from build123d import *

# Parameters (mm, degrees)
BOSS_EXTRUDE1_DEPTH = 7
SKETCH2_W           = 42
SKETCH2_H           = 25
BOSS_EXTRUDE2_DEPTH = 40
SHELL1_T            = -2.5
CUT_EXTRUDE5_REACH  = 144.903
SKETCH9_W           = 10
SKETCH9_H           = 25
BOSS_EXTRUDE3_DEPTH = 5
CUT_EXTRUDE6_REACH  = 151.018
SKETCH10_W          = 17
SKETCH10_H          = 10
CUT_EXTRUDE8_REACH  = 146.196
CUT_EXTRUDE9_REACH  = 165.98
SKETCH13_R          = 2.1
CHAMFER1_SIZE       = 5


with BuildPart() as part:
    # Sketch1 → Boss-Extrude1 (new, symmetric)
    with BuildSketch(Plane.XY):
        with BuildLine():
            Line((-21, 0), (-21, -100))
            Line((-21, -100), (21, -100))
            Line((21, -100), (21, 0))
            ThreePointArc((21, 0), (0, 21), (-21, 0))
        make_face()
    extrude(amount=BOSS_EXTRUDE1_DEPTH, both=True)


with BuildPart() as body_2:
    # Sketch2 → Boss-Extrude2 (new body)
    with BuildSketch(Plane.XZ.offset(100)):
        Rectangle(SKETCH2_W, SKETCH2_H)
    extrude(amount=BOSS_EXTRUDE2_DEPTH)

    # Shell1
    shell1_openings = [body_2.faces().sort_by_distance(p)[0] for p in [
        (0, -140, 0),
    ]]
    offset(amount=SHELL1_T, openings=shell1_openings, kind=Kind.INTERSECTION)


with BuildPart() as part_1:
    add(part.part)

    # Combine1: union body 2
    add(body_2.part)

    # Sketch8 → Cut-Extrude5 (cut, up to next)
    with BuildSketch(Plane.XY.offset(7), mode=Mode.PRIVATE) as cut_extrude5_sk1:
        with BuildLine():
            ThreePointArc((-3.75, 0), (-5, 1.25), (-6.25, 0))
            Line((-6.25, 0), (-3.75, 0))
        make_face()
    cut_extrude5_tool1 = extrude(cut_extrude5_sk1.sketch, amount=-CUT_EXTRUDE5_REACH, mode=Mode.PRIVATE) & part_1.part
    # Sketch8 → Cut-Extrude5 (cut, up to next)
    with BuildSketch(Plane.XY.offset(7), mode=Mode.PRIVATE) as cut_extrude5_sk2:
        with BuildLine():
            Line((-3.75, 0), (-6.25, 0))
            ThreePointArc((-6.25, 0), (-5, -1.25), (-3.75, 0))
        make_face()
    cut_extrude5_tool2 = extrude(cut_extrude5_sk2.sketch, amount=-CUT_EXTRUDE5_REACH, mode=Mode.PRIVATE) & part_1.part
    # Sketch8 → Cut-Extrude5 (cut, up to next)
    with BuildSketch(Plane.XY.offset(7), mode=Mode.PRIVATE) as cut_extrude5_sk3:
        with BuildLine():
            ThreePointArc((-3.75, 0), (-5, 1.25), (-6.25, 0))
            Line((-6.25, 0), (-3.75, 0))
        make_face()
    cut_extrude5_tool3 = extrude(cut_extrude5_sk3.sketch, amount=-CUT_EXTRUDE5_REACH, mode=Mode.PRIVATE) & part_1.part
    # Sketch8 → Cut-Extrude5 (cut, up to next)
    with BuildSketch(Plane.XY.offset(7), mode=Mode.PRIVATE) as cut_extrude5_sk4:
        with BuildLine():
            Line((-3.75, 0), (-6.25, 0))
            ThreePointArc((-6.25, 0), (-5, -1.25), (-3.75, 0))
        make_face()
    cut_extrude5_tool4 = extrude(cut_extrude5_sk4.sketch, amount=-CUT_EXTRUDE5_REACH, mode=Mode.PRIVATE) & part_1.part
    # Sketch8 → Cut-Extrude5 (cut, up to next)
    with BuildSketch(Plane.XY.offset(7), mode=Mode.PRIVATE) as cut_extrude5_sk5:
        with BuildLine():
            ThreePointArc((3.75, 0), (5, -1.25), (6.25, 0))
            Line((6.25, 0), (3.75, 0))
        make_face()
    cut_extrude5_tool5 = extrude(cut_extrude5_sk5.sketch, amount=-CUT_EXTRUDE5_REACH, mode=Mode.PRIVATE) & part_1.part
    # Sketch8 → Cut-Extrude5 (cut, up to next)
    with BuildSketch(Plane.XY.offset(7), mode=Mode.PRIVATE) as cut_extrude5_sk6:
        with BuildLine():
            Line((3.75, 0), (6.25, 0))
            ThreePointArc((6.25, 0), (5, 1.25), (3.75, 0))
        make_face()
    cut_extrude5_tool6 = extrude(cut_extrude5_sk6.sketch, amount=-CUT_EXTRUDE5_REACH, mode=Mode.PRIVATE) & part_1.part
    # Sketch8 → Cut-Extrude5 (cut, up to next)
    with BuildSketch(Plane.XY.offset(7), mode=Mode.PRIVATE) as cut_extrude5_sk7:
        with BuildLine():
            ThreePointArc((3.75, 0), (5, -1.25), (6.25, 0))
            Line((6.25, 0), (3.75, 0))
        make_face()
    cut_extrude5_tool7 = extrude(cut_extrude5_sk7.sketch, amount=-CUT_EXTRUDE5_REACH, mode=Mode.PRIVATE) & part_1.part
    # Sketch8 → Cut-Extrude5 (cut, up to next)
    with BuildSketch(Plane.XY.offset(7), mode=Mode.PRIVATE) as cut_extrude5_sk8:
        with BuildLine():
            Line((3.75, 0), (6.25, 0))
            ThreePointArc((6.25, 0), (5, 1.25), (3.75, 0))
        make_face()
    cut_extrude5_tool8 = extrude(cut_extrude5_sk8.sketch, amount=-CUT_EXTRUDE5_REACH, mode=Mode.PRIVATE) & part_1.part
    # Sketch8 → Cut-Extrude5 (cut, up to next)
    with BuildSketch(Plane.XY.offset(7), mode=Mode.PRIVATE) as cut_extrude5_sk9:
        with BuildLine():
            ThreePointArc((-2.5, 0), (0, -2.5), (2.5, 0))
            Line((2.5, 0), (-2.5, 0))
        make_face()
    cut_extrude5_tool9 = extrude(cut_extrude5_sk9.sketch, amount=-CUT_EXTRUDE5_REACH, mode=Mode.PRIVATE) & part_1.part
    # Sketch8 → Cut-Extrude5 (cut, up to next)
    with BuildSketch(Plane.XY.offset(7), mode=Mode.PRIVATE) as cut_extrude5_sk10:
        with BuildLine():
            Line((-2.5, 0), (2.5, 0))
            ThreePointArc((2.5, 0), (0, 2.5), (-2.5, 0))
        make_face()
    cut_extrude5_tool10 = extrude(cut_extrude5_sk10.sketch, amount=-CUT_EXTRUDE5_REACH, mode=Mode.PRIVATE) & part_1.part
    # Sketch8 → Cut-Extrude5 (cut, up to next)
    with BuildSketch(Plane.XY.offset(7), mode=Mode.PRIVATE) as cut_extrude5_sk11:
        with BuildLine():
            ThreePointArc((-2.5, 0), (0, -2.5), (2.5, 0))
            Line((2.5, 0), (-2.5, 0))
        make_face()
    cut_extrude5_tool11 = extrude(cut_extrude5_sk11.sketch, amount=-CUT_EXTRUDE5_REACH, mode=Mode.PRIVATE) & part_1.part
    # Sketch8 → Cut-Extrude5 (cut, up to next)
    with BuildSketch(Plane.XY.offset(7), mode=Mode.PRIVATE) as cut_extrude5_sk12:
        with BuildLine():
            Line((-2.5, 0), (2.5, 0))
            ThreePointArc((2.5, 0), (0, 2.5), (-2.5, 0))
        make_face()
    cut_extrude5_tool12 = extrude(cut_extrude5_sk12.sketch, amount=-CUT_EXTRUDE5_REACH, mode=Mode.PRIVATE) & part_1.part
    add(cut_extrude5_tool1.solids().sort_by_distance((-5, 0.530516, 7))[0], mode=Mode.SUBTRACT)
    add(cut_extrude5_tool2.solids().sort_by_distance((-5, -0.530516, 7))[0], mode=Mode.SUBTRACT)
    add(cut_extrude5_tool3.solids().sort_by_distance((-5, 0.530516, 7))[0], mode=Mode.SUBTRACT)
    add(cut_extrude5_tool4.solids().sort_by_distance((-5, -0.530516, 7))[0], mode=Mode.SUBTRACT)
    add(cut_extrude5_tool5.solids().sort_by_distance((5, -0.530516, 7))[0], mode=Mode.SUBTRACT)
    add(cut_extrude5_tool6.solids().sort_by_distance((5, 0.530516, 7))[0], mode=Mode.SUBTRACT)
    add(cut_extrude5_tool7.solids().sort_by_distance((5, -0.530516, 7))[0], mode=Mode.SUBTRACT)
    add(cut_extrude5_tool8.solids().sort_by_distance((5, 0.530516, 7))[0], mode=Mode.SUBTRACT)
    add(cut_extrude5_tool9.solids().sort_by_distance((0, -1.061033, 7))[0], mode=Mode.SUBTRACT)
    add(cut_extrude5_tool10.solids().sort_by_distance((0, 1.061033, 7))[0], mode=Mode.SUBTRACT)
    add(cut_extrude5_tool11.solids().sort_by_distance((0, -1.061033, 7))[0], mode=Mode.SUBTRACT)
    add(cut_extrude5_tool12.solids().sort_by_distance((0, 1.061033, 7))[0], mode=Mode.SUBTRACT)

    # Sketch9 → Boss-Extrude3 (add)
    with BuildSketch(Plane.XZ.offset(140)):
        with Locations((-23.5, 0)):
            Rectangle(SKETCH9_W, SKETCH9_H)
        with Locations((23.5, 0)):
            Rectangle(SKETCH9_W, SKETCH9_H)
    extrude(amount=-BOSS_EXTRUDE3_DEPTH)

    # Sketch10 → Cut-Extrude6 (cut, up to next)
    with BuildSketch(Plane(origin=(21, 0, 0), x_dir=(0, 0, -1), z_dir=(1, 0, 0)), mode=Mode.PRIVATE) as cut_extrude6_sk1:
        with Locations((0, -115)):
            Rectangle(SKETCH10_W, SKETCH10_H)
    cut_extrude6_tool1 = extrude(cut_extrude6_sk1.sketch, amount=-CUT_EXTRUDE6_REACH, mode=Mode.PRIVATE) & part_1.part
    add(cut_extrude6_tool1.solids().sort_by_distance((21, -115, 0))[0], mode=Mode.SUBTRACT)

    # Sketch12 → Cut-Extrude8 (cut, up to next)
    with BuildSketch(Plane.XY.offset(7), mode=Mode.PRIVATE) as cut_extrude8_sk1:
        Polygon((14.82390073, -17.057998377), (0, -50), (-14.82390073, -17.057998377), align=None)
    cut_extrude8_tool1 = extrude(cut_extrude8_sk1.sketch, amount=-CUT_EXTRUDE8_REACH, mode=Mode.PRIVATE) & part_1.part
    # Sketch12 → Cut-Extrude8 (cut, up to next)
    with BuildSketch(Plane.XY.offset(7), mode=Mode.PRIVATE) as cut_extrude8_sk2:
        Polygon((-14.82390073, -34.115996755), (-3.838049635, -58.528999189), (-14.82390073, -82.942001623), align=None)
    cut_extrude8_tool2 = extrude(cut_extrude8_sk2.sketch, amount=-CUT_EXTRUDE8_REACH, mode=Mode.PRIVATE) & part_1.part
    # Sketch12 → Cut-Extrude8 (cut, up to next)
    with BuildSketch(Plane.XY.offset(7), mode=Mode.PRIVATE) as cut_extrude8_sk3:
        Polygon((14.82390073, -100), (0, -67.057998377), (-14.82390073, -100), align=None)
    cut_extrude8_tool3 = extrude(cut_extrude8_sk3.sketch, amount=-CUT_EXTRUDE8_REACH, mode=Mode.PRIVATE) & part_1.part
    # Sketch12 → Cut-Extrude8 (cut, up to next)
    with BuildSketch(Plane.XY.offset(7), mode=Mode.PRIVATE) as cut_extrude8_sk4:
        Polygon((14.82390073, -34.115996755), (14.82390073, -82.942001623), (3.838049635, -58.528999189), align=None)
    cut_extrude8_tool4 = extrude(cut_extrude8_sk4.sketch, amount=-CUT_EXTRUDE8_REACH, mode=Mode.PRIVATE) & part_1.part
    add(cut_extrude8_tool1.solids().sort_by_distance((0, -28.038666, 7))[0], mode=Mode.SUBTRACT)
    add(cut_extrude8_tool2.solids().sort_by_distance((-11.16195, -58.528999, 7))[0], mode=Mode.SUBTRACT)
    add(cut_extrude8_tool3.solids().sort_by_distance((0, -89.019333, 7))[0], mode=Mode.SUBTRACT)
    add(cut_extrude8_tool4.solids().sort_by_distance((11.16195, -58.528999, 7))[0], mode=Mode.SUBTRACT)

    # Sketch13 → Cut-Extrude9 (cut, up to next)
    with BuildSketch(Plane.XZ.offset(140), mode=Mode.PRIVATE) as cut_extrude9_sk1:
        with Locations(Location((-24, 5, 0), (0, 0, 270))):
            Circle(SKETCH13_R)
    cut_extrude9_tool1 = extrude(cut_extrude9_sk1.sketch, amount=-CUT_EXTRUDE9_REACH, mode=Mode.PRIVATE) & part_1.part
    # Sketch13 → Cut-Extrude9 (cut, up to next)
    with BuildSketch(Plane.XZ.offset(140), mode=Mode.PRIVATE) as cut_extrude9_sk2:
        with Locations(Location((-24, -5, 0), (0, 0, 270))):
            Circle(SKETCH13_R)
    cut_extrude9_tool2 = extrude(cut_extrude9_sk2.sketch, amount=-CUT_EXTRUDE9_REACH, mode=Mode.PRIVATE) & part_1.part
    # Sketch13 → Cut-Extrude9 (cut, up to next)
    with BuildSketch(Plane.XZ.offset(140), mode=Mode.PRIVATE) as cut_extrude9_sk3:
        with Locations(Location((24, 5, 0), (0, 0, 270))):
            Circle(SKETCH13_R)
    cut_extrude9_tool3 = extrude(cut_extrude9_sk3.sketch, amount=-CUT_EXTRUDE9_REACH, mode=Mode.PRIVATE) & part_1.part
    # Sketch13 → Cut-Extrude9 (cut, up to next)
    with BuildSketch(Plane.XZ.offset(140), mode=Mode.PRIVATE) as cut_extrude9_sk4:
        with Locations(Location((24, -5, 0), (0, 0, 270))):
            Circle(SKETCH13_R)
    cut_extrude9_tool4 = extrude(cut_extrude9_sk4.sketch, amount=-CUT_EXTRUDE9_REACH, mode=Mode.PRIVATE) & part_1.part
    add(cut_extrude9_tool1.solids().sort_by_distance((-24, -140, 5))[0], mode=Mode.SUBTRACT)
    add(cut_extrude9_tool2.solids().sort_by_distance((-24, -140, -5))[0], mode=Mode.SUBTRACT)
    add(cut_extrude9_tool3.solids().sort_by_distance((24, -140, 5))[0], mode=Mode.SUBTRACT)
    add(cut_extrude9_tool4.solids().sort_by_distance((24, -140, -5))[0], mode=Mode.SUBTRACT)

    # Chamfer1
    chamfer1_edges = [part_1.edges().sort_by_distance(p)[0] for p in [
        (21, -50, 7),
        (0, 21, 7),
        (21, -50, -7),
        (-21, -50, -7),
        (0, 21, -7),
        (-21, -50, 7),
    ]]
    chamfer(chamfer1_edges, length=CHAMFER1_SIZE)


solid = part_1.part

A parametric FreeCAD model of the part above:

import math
import FreeCAD as App
import Part
import Sketcher
Q = App.Units.Quantity


def edges_at(feature, points):
    """Names of the edges that pass closest to the given points."""
    edges = feature.Shape.Edges
    near = lambda p: min(range(len(edges)), key=lambda i: edges[i].distToShape(Part.Vertex(*p))[0])
    return sorted({f"Edge{near(p) + 1}" for p in points})


def faces_at(feature, points):
    """Names of the faces that lie closest to the given points."""
    faces = feature.Shape.Faces
    near = lambda p: min(range(len(faces)), key=lambda i: faces[i].distToShape(Part.Vertex(*p))[0])
    return sorted({f"Face{near(p) + 1}" for p in points})


def add_polygon(sketch, points):
    """Adds a closed chain of lines whose ends are joined by coincident constraints."""
    first, n = sketch.GeometryCount, len(points)
    for a, b in zip(points, points[1:] + points[:1]):
        sketch.addGeometry(Part.LineSegment(App.Vector(*a, 0), App.Vector(*b, 0)), False)
    for i in range(n):
        sketch.addConstraint(Sketcher.Constraint("Coincident", first + i, 2, first + (i + 1) % n, 1))

doc = App.newDocument("Part")
body = doc.addObject("PartDesign::Body", "Body")

# Sketch on XY plane
sketch1 = doc.addObject("Sketcher::SketchObject", "Sketch")
body.addObject(sketch1)
sketch1.AttachmentSupport = (doc.XY_Plane, [""])
sketch1.MapMode = "FlatFace"
sketch1.addGeometry(Part.LineSegment(App.Vector(-21, 0, 0), App.Vector(-21, -100, 0)), False)
sketch1.addGeometry(Part.LineSegment(App.Vector(-21, -100, 0), App.Vector(21, -100, 0)), False)
sketch1.addGeometry(Part.LineSegment(App.Vector(21, -100, 0), App.Vector(21, 0, 0)), False)
sketch1.addGeometry(Part.ArcOfCircle(Part.Circle(App.Vector(0, 0, 0), App.Vector(0, 0, 1), 21), math.radians(0), math.radians(180)), False)
sketch1.addConstraint(Sketcher.Constraint("Coincident", 0, 2, 1, 1))
sketch1.addConstraint(Sketcher.Constraint("Coincident", 1, 2, 2, 1))
sketch1.addConstraint(Sketcher.Constraint("Tangent", 2, 2, 3, 1))
sketch1.addConstraint(Sketcher.Constraint("Tangent", 3, 2, 0, 1))
sketch1.addConstraint(Sketcher.Constraint("Vertical", 0))
sketch1.addConstraint(Sketcher.Constraint("Horizontal", 1))
sketch1.addConstraint(Sketcher.Constraint("Vertical", 2))
sketch1.addConstraint(Sketcher.Constraint("Coincident", 3, 3, -1, 1))
sketch1.addConstraint(Sketcher.Constraint("Radius", 3, Q("21 mm")))
sketch1.addConstraint(Sketcher.Constraint("DistanceY", 0, 2, 0, 1, Q("100 mm")))
pad1 = doc.addObject("PartDesign::Pad", "Pad")
body.addObject(pad1)
pad1.Profile = sketch1
pad1.Length = 14
pad1.Midplane = True
body2 = doc.addObject("PartDesign::Body", "Body001")

# Sketch on XZ plane
sketch2 = doc.addObject("Sketcher::SketchObject", "Sketch001")
body2.addObject(sketch2)
sketch2.AttachmentSupport = (doc.getObject("XZ_Plane001"), [""])
sketch2.MapMode = "FlatFace"
sketch2.AttachmentOffset = App.Placement(App.Vector(0, 0, 100), App.Rotation())
add_polygon(sketch2, [(-21, 12), (-21, -12), (21, -12), (21, 12)])  # lines 0-3
sketch2.addConstraint(Sketcher.Constraint("Vertical", 0))
sketch2.addConstraint(Sketcher.Constraint("Horizontal", 1))
sketch2.addConstraint(Sketcher.Constraint("Vertical", 2))
sketch2.addConstraint(Sketcher.Constraint("Horizontal", 3))
sketch2.addConstraint(Sketcher.Constraint("Symmetric", 0, 2, 2, 2, -1, 1))
sketch2.addConstraint(Sketcher.Constraint("DistanceX", 1, 1, 1, 2, Q("42 mm")))
sketch2.addConstraint(Sketcher.Constraint("DistanceY", 0, 2, 0, 1, Q("25 mm")))
pad2 = doc.addObject("PartDesign::Pad", "Pad001")
body2.addObject(pad2)
pad2.Profile = sketch2
pad2.Length = 40
doc.recompute()

thickness = doc.addObject("PartDesign::Thickness", "Thickness")
body2.addObject(thickness)
thickness.Base = (pad2, faces_at(pad2, [(0, -140, 0)]))
thickness.Value = 2.5
thickness.Reversed = True
thickness.Join = "Intersection"
doc.recompute()

boolean = doc.addObject("PartDesign::Boolean", "Boolean")
body.addObject(boolean)
boolean.Type = "Fuse"
boolean.addObjects([body2])

# Sketch on XY plane
sketch3 = doc.addObject("Sketcher::SketchObject", "Sketch002")
body.addObject(sketch3)
sketch3.AttachmentSupport = (doc.XY_Plane, [""])
sketch3.MapMode = "FlatFace"
sketch3.AttachmentOffset = App.Placement(App.Vector(0, 0, 7), App.Rotation())
sketch3.addGeometry(Part.ArcOfCircle(Part.Circle(App.Vector(-5, 0, 0), App.Vector(0, 0, 1), 1.2), math.radians(0), math.radians(180)), False)
sketch3.addGeometry(Part.LineSegment(App.Vector(-6.2, 0, 0), App.Vector(-3.8, 0, 0)), False)
sketch3.addConstraint(Sketcher.Constraint("Coincident", 0, 1, 1, 2))
sketch3.addConstraint(Sketcher.Constraint("Coincident", 1, 1, 0, 2))
sketch3.addConstraint(Sketcher.Constraint("Horizontal", 1))
sketch3.addConstraint(Sketcher.Constraint("PointOnObject", 0, 3, -1))
sketch3.addConstraint(Sketcher.Constraint("PointOnObject", 0, 1, -1))
sketch3.addConstraint(Sketcher.Constraint("Radius", 0, Q("1.25 mm")))
sketch3.addConstraint(Sketcher.Constraint("DistanceX", 0, 3, -1, 1, Q("5 mm")))
pocket1 = doc.addObject("PartDesign::Pocket", "Pocket")
body.addObject(pocket1)
pocket1.Profile = sketch3
pocket1.Type = "UpToFirst"

# Sketch on XY plane
sketch4 = doc.addObject("Sketcher::SketchObject", "Sketch003")
body.addObject(sketch4)
sketch4.AttachmentSupport = (doc.XY_Plane, [""])
sketch4.MapMode = "FlatFace"
sketch4.AttachmentOffset = App.Placement(App.Vector(0, 0, 7), App.Rotation())
sketch4.addGeometry(Part.LineSegment(App.Vector(-3.8, 0, 0), App.Vector(-6.2, 0, 0)), False)
sketch4.addGeometry(Part.ArcOfCircle(Part.Circle(App.Vector(-5, 0, 0), App.Vector(0, 0, 1), 1.2), math.radians(180), math.radians(360)), False)
sketch4.addConstraint(Sketcher.Constraint("Coincident", 0, 1, 1, 2))
sketch4.addConstraint(Sketcher.Constraint("Coincident", 1, 1, 0, 2))
sketch4.addConstraint(Sketcher.Constraint("Horizontal", 0))
sketch4.addConstraint(Sketcher.Constraint("PointOnObject", 1, 3, -1))
sketch4.addConstraint(Sketcher.Constraint("PointOnObject", 0, 1, -1))
sketch4.addConstraint(Sketcher.Constraint("Radius", 1, Q("1.25 mm")))
sketch4.addConstraint(Sketcher.Constraint("DistanceX", 1, 3, -1, 1, Q("5 mm")))
pocket2 = doc.addObject("PartDesign::Pocket", "Pocket001")
body.addObject(pocket2)
pocket2.Profile = sketch4
pocket2.Type = "UpToFirst"

# Sketch on XY plane
sketch5 = doc.addObject("Sketcher::SketchObject", "Sketch004")
body.addObject(sketch5)
sketch5.AttachmentSupport = (doc.XY_Plane, [""])
sketch5.MapMode = "FlatFace"
sketch5.AttachmentOffset = App.Placement(App.Vector(0, 0, 7), App.Rotation())
sketch5.addGeometry(Part.ArcOfCircle(Part.Circle(App.Vector(-5, 0, 0), App.Vector(0, 0, 1), 1.2), math.radians(0), math.radians(180)), False)
sketch5.addGeometry(Part.LineSegment(App.Vector(-6.2, 0, 0), App.Vector(-3.8, 0, 0)), False)
sketch5.addConstraint(Sketcher.Constraint("Coincident", 0, 1, 1, 2))
sketch5.addConstraint(Sketcher.Constraint("Coincident", 1, 1, 0, 2))
sketch5.addConstraint(Sketcher.Constraint("Horizontal", 1))
sketch5.addConstraint(Sketcher.Constraint("PointOnObject", 0, 3, -1))
sketch5.addConstraint(Sketcher.Constraint("PointOnObject", 0, 1, -1))
sketch5.addConstraint(Sketcher.Constraint("Radius", 0, Q("1.25 mm")))
sketch5.addConstraint(Sketcher.Constraint("DistanceX", 0, 3, -1, 1, Q("5 mm")))
pocket3 = doc.addObject("PartDesign::Pocket", "Pocket002")
body.addObject(pocket3)
pocket3.Profile = sketch5
pocket3.Length = 14

# Sketch on XY plane
sketch6 = doc.addObject("Sketcher::SketchObject", "Sketch005")
body.addObject(sketch6)
sketch6.AttachmentSupport = (doc.XY_Plane, [""])
sketch6.MapMode = "FlatFace"
sketch6.AttachmentOffset = App.Placement(App.Vector(0, 0, 7), App.Rotation())
sketch6.addGeometry(Part.LineSegment(App.Vector(-3.8, 0, 0), App.Vector(-6.2, 0, 0)), False)
sketch6.addGeometry(Part.ArcOfCircle(Part.Circle(App.Vector(-5, 0, 0), App.Vector(0, 0, 1), 1.2), math.radians(180), math.radians(360)), False)
sketch6.addConstraint(Sketcher.Constraint("Coincident", 0, 1, 1, 2))
sketch6.addConstraint(Sketcher.Constraint("Coincident", 1, 1, 0, 2))
sketch6.addConstraint(Sketcher.Constraint("Horizontal", 0))
sketch6.addConstraint(Sketcher.Constraint("PointOnObject", 1, 3, -1))
sketch6.addConstraint(Sketcher.Constraint("PointOnObject", 0, 1, -1))
sketch6.addConstraint(Sketcher.Constraint("Radius", 1, Q("1.25 mm")))
sketch6.addConstraint(Sketcher.Constraint("DistanceX", 1, 3, -1, 1, Q("5 mm")))
pocket4 = doc.addObject("PartDesign::Pocket", "Pocket003")
body.addObject(pocket4)
pocket4.Profile = sketch6
pocket4.Length = 14

# Sketch on XY plane
sketch7 = doc.addObject("Sketcher::SketchObject", "Sketch006")
body.addObject(sketch7)
sketch7.AttachmentSupport = (doc.XY_Plane, [""])
sketch7.MapMode = "FlatFace"
sketch7.AttachmentOffset = App.Placement(App.Vector(0, 0, 7), App.Rotation())
sketch7.addGeometry(Part.ArcOfCircle(Part.Circle(App.Vector(5, 0, 0), App.Vector(0, 0, 1), 1.2), math.radians(180), math.radians(360)), False)
sketch7.addGeometry(Part.LineSegment(App.Vector(6.2, 0, 0), App.Vector(3.8, 0, 0)), False)
sketch7.addConstraint(Sketcher.Constraint("Coincident", 0, 1, 1, 2))
sketch7.addConstraint(Sketcher.Constraint("Coincident", 1, 1, 0, 2))
sketch7.addConstraint(Sketcher.Constraint("Horizontal", 1))
sketch7.addConstraint(Sketcher.Constraint("PointOnObject", 0, 3, -1))
sketch7.addConstraint(Sketcher.Constraint("PointOnObject", 0, 1, -1))
sketch7.addConstraint(Sketcher.Constraint("Radius", 0, Q("1.25 mm")))
sketch7.addConstraint(Sketcher.Constraint("DistanceX", -1, 1, 0, 3, Q("5 mm")))
pocket5 = doc.addObject("PartDesign::Pocket", "Pocket004")
body.addObject(pocket5)
pocket5.Profile = sketch7
pocket5.Type = "UpToFirst"

# Sketch on XY plane
sketch8 = doc.addObject("Sketcher::SketchObject", "Sketch007")
body.addObject(sketch8)
sketch8.AttachmentSupport = (doc.XY_Plane, [""])
sketch8.MapMode = "FlatFace"
sketch8.AttachmentOffset = App.Placement(App.Vector(0, 0, 7), App.Rotation())
sketch8.addGeometry(Part.LineSegment(App.Vector(3.8, 0, 0), App.Vector(6.2, 0, 0)), False)
sketch8.addGeometry(Part.ArcOfCircle(Part.Circle(App.Vector(5, 0, 0), App.Vector(0, 0, 1), 1.2), math.radians(0), math.radians(180)), False)
sketch8.addConstraint(Sketcher.Constraint("Coincident", 0, 1, 1, 2))
sketch8.addConstraint(Sketcher.Constraint("Coincident", 1, 1, 0, 2))
sketch8.addConstraint(Sketcher.Constraint("Horizontal", 0))
sketch8.addConstraint(Sketcher.Constraint("PointOnObject", 1, 3, -1))
sketch8.addConstraint(Sketcher.Constraint("PointOnObject", 0, 1, -1))
sketch8.addConstraint(Sketcher.Constraint("Radius", 1, Q("1.25 mm")))
sketch8.addConstraint(Sketcher.Constraint("DistanceX", -1, 1, 1, 3, Q("5 mm")))
pocket6 = doc.addObject("PartDesign::Pocket", "Pocket005")
body.addObject(pocket6)
pocket6.Profile = sketch8
pocket6.Type = "UpToFirst"

# Sketch on XY plane
sketch9 = doc.addObject("Sketcher::SketchObject", "Sketch008")
body.addObject(sketch9)
sketch9.AttachmentSupport = (doc.XY_Plane, [""])
sketch9.MapMode = "FlatFace"
sketch9.AttachmentOffset = App.Placement(App.Vector(0, 0, 7), App.Rotation())
sketch9.addGeometry(Part.ArcOfCircle(Part.Circle(App.Vector(5, 0, 0), App.Vector(0, 0, 1), 1.2), math.radians(180), math.radians(360)), False)
sketch9.addGeometry(Part.LineSegment(App.Vector(6.2, 0, 0), App.Vector(3.8, 0, 0)), False)
sketch9.addConstraint(Sketcher.Constraint("Coincident", 0, 1, 1, 2))
sketch9.addConstraint(Sketcher.Constraint("Coincident", 1, 1, 0, 2))
sketch9.addConstraint(Sketcher.Constraint("Horizontal", 1))
sketch9.addConstraint(Sketcher.Constraint("PointOnObject", 0, 3, -1))
sketch9.addConstraint(Sketcher.Constraint("PointOnObject", 0, 1, -1))
sketch9.addConstraint(Sketcher.Constraint("Radius", 0, Q("1.25 mm")))
sketch9.addConstraint(Sketcher.Constraint("DistanceX", -1, 1, 0, 3, Q("5 mm")))
pocket7 = doc.addObject("PartDesign::Pocket", "Pocket006")
body.addObject(pocket7)
pocket7.Profile = sketch9
pocket7.Length = 14

# Sketch on XY plane
sketch10 = doc.addObject("Sketcher::SketchObject", "Sketch009")
body.addObject(sketch10)
sketch10.AttachmentSupport = (doc.XY_Plane, [""])
sketch10.MapMode = "FlatFace"
sketch10.AttachmentOffset = App.Placement(App.Vector(0, 0, 7), App.Rotation())
sketch10.addGeometry(Part.LineSegment(App.Vector(3.8, 0, 0), App.Vector(6.2, 0, 0)), False)
sketch10.addGeometry(Part.ArcOfCircle(Part.Circle(App.Vector(5, 0, 0), App.Vector(0, 0, 1), 1.2), math.radians(0), math.radians(180)), False)
sketch10.addConstraint(Sketcher.Constraint("Coincident", 0, 1, 1, 2))
sketch10.addConstraint(Sketcher.Constraint("Coincident", 1, 1, 0, 2))
sketch10.addConstraint(Sketcher.Constraint("Horizontal", 0))
sketch10.addConstraint(Sketcher.Constraint("PointOnObject", 1, 3, -1))
sketch10.addConstraint(Sketcher.Constraint("PointOnObject", 0, 1, -1))
sketch10.addConstraint(Sketcher.Constraint("Radius", 1, Q("1.25 mm")))
sketch10.addConstraint(Sketcher.Constraint("DistanceX", -1, 1, 1, 3, Q("5 mm")))
pocket8 = doc.addObject("PartDesign::Pocket", "Pocket007")
body.addObject(pocket8)
pocket8.Profile = sketch10
pocket8.Length = 14

# Sketch on XY plane
sketch11 = doc.addObject("Sketcher::SketchObject", "Sketch010")
body.addObject(sketch11)
sketch11.AttachmentSupport = (doc.XY_Plane, [""])
sketch11.MapMode = "FlatFace"
sketch11.AttachmentOffset = App.Placement(App.Vector(0, 0, 7), App.Rotation())
sketch11.addGeometry(Part.ArcOfCircle(Part.Circle(App.Vector(0, 0, 0), App.Vector(0, 0, 1), 2.5), math.radians(180), math.radians(360)), False)
sketch11.addGeometry(Part.LineSegment(App.Vector(2.5, 0, 0), App.Vector(-2.5, 0, 0)), False)
sketch11.addConstraint(Sketcher.Constraint("Coincident", 0, 1, 1, 2))
sketch11.addConstraint(Sketcher.Constraint("Coincident", 1, 1, 0, 2))
sketch11.addConstraint(Sketcher.Constraint("Horizontal", 1))
sketch11.addConstraint(Sketcher.Constraint("Coincident", 0, 3, -1, 1))
sketch11.addConstraint(Sketcher.Constraint("PointOnObject", 0, 1, -1))
sketch11.addConstraint(Sketcher.Constraint("Radius", 0, Q("2.5 mm")))
pocket9 = doc.addObject("PartDesign::Pocket", "Pocket008")
body.addObject(pocket9)
pocket9.Profile = sketch11
pocket9.Type = "UpToFirst"

# Sketch on XY plane
sketch12 = doc.addObject("Sketcher::SketchObject", "Sketch011")
body.addObject(sketch12)
sketch12.AttachmentSupport = (doc.XY_Plane, [""])
sketch12.MapMode = "FlatFace"
sketch12.AttachmentOffset = App.Placement(App.Vector(0, 0, 7), App.Rotation())
sketch12.addGeometry(Part.LineSegment(App.Vector(-2.5, 0, 0), App.Vector(2.5, 0, 0)), False)
sketch12.addGeometry(Part.ArcOfCircle(Part.Circle(App.Vector(0, 0, 0), App.Vector(0, 0, 1), 2.5), math.radians(0), math.radians(180)), False)
sketch12.addConstraint(Sketcher.Constraint("Coincident", 0, 1, 1, 2))
sketch12.addConstraint(Sketcher.Constraint("Coincident", 1, 1, 0, 2))
sketch12.addConstraint(Sketcher.Constraint("Horizontal", 0))
sketch12.addConstraint(Sketcher.Constraint("Coincident", 1, 3, -1, 1))
sketch12.addConstraint(Sketcher.Constraint("PointOnObject", 0, 1, -1))
sketch12.addConstraint(Sketcher.Constraint("Radius", 1, Q("2.5 mm")))
pocket10 = doc.addObject("PartDesign::Pocket", "Pocket009")
body.addObject(pocket10)
pocket10.Profile = sketch12
pocket10.Type = "UpToFirst"

# Sketch on XY plane
sketch13 = doc.addObject("Sketcher::SketchObject", "Sketch012")
body.addObject(sketch13)
sketch13.AttachmentSupport = (doc.XY_Plane, [""])
sketch13.MapMode = "FlatFace"
sketch13.AttachmentOffset = App.Placement(App.Vector(0, 0, 7), App.Rotation())
sketch13.addGeometry(Part.ArcOfCircle(Part.Circle(App.Vector(0, 0, 0), App.Vector(0, 0, 1), 2.5), math.radians(180), math.radians(360)), False)
sketch13.addGeometry(Part.LineSegment(App.Vector(2.5, 0, 0), App.Vector(-2.5, 0, 0)), False)
sketch13.addConstraint(Sketcher.Constraint("Coincident", 0, 1, 1, 2))
sketch13.addConstraint(Sketcher.Constraint("Coincident", 1, 1, 0, 2))
sketch13.addConstraint(Sketcher.Constraint("Horizontal", 1))
sketch13.addConstraint(Sketcher.Constraint("Coincident", 0, 3, -1, 1))
sketch13.addConstraint(Sketcher.Constraint("PointOnObject", 0, 1, -1))
sketch13.addConstraint(Sketcher.Constraint("Radius", 0, Q("2.5 mm")))
pocket11 = doc.addObject("PartDesign::Pocket", "Pocket010")
body.addObject(pocket11)
pocket11.Profile = sketch13
pocket11.Length = 14

# Sketch on XY plane
sketch14 = doc.addObject("Sketcher::SketchObject", "Sketch013")
body.addObject(sketch14)
sketch14.AttachmentSupport = (doc.XY_Plane, [""])
sketch14.MapMode = "FlatFace"
sketch14.AttachmentOffset = App.Placement(App.Vector(0, 0, 7), App.Rotation())
sketch14.addGeometry(Part.LineSegment(App.Vector(-2.5, 0, 0), App.Vector(2.5, 0, 0)), False)
sketch14.addGeometry(Part.ArcOfCircle(Part.Circle(App.Vector(0, 0, 0), App.Vector(0, 0, 1), 2.5), math.radians(0), math.radians(180)), False)
sketch14.addConstraint(Sketcher.Constraint("Coincident", 0, 1, 1, 2))
sketch14.addConstraint(Sketcher.Constraint("Coincident", 1, 1, 0, 2))
sketch14.addConstraint(Sketcher.Constraint("Horizontal", 0))
sketch14.addConstraint(Sketcher.Constraint("Coincident", 1, 3, -1, 1))
sketch14.addConstraint(Sketcher.Constraint("PointOnObject", 0, 1, -1))
sketch14.addConstraint(Sketcher.Constraint("Radius", 1, Q("2.5 mm")))
pocket12 = doc.addObject("PartDesign::Pocket", "Pocket011")
body.addObject(pocket12)
pocket12.Profile = sketch14
pocket12.Length = 14

# Sketch on XZ plane
sketch15 = doc.addObject("Sketcher::SketchObject", "Sketch014")
body.addObject(sketch15)
sketch15.AttachmentSupport = (doc.XZ_Plane, [""])
sketch15.MapMode = "FlatFace"
sketch15.AttachmentOffset = App.Placement(App.Vector(0, 0, 140), App.Rotation())
add_polygon(sketch15, [(-28, 12), (-28, -12), (-18, -12), (-18, 12)])  # lines 0-3
add_polygon(sketch15, [(18, 12), (18, -12), (28, -12), (28, 12)])  # lines 4-7
sketch15.addConstraint(Sketcher.Constraint("Vertical", 0))
sketch15.addConstraint(Sketcher.Constraint("Horizontal", 1))
sketch15.addConstraint(Sketcher.Constraint("Vertical", 2))
sketch15.addConstraint(Sketcher.Constraint("Horizontal", 3))
sketch15.addConstraint(Sketcher.Constraint("Vertical", 4))
sketch15.addConstraint(Sketcher.Constraint("Horizontal", 5))
sketch15.addConstraint(Sketcher.Constraint("Vertical", 6))
sketch15.addConstraint(Sketcher.Constraint("Horizontal", 7))
sketch15.addConstraint(Sketcher.Constraint("Symmetric", 2, 2, 4, 2, -1, 1))
sketch15.addConstraint(Sketcher.Constraint("Symmetric", 0, 2, 6, 2, -1, 1))
sketch15.addConstraint(Sketcher.Constraint("Horizontal", 1, 2, 4, 2))
sketch15.addConstraint(Sketcher.Constraint("DistanceX", 1, 1, 1, 2, Q("10 mm")))
sketch15.addConstraint(Sketcher.Constraint("DistanceY", 0, 2, 0, 1, Q("25 mm")))
sketch15.addConstraint(Sketcher.Constraint("DistanceX", 1, 2, 4, 2, Q("37 mm")))
pad3 = doc.addObject("PartDesign::Pad", "Pad002")
body.addObject(pad3)
pad3.Profile = sketch15
pad3.Length = 5
pad3.Reversed = True

# Sketch on YZ plane
sketch16 = doc.addObject("Sketcher::SketchObject", "Sketch015")
body.addObject(sketch16)
sketch16.AttachmentSupport = (doc.YZ_Plane, [""])
sketch16.MapMode = "FlatFace"
sketch16.AttachmentOffset = App.Placement(App.Vector(0, 0, 21), App.Rotation())
add_polygon(sketch16, [(-110, 8), (-120, 8), (-120, -8), (-110, -8)])  # lines 0-3
sketch16.addConstraint(Sketcher.Constraint("Horizontal", 0))
sketch16.addConstraint(Sketcher.Constraint("Vertical", 1))
sketch16.addConstraint(Sketcher.Constraint("Horizontal", 2))
sketch16.addConstraint(Sketcher.Constraint("Vertical", 3))
sketch16.addConstraint(Sketcher.Constraint("DistanceX", 0, 2, 0, 1, Q("10 mm")))
sketch16.addConstraint(Sketcher.Constraint("DistanceY", 1, 2, 1, 1, Q("17 mm")))
sketch16.addConstraint(Sketcher.Constraint("DistanceX", 0, 2, -1, 1, Q("120 mm")))
sketch16.addConstraint(Sketcher.Constraint("DistanceY", -1, 1, 0, 2, Q("8.5 mm")))
pocket13 = doc.addObject("PartDesign::Pocket", "Pocket012")
body.addObject(pocket13)
pocket13.Profile = sketch16
pocket13.Type = "UpToFirst"

# Sketch on XY plane
sketch17 = doc.addObject("Sketcher::SketchObject", "Sketch016")
body.addObject(sketch17)
sketch17.AttachmentSupport = (doc.XY_Plane, [""])
sketch17.MapMode = "FlatFace"
sketch17.AttachmentOffset = App.Placement(App.Vector(0, 0, 7), App.Rotation())
add_polygon(sketch17, [(0, -50), (15, -17), (-15, -17)])  # lines 0-2
sketch17.addConstraint(Sketcher.Constraint("Horizontal", 1))
sketch17.addConstraint(Sketcher.Constraint("PointOnObject", 2, 2, -2))
sketch17.addConstraint(Sketcher.Constraint("Equal", 0, 2))
sketch17.addConstraint(Sketcher.Constraint("DistanceY", 2, 2, -1, 1, Q("50 mm")))
sketch17.addConstraint(Sketcher.Constraint("DistanceX", 1, 2, 1, 1, Q("29.647801 mm")))
sketch17.addConstraint(Sketcher.Constraint("DistanceY", 0, 2, -1, 1, Q("17.057998 mm")))
pocket14 = doc.addObject("PartDesign::Pocket", "Pocket013")
body.addObject(pocket14)
pocket14.Profile = sketch17
pocket14.Type = "UpToFirst"

# Sketch on XY plane
sketch18 = doc.addObject("Sketcher::SketchObject", "Sketch017")
body.addObject(sketch18)
sketch18.AttachmentSupport = (doc.XY_Plane, [""])
sketch18.MapMode = "FlatFace"
sketch18.AttachmentOffset = App.Placement(App.Vector(0, 0, 7), App.Rotation())
add_polygon(sketch18, [(-4, -59), (-15, -34), (-15, -83)])  # lines 0-2
sketch18.addConstraint(Sketcher.Constraint("Vertical", 1))
sketch18.addConstraint(Sketcher.Constraint("Equal", 0, 2))
sketch18.addConstraint(Sketcher.Constraint("DistanceY", 1, 2, -1, 1, Q("82.942002 mm")))
sketch18.addConstraint(Sketcher.Constraint("DistanceY", 2, 2, -1, 1, Q("58.528999 mm")))
sketch18.addConstraint(Sketcher.Constraint("DistanceX", 0, 2, -1, 1, Q("14.823901 mm")))
sketch18.addConstraint(Sketcher.Constraint("DistanceX", 2, 2, -1, 1, Q("3.83805 mm")))
pocket15 = doc.addObject("PartDesign::Pocket", "Pocket014")
body.addObject(pocket15)
pocket15.Profile = sketch18
pocket15.Type = "UpToFirst"

# Sketch on XY plane
sketch19 = doc.addObject("Sketcher::SketchObject", "Sketch018")
body.addObject(sketch19)
sketch19.AttachmentSupport = (doc.XY_Plane, [""])
sketch19.MapMode = "FlatFace"
sketch19.AttachmentOffset = App.Placement(App.Vector(0, 0, 7), App.Rotation())
add_polygon(sketch19, [(15, -100), (0, -67), (-15, -100)])  # lines 0-2
sketch19.addConstraint(Sketcher.Constraint("Horizontal", 2))
sketch19.addConstraint(Sketcher.Constraint("PointOnObject", 0, 2, -2))
sketch19.addConstraint(Sketcher.Constraint("Equal", 0, 1))
sketch19.addConstraint(Sketcher.Constraint("DistanceY", 1, 2, -1, 1, Q("100 mm")))
sketch19.addConstraint(Sketcher.Constraint("DistanceX", 2, 1, 2, 2, Q("29.647801 mm")))
sketch19.addConstraint(Sketcher.Constraint("DistanceY", 0, 2, -1, 1, Q("67.057998 mm")))
pocket16 = doc.addObject("PartDesign::Pocket", "Pocket015")
body.addObject(pocket16)
pocket16.Profile = sketch19
pocket16.Type = "UpToFirst"

# Sketch on XY plane
sketch20 = doc.addObject("Sketcher::SketchObject", "Sketch019")
body.addObject(sketch20)
sketch20.AttachmentSupport = (doc.XY_Plane, [""])
sketch20.MapMode = "FlatFace"
sketch20.AttachmentOffset = App.Placement(App.Vector(0, 0, 7), App.Rotation())
add_polygon(sketch20, [(15, -83), (15, -34), (4, -59)])  # lines 0-2
sketch20.addConstraint(Sketcher.Constraint("Vertical", 0))
sketch20.addConstraint(Sketcher.Constraint("Equal", 1, 2))
sketch20.addConstraint(Sketcher.Constraint("DistanceY", 1, 2, -1, 1, Q("58.528999 mm")))
sketch20.addConstraint(Sketcher.Constraint("DistanceY", 2, 2, -1, 1, Q("82.942002 mm")))
sketch20.addConstraint(Sketcher.Constraint("DistanceX", -1, 1, 0, 2, Q("14.823901 mm")))
sketch20.addConstraint(Sketcher.Constraint("DistanceX", -1, 1, 1, 2, Q("3.83805 mm")))
pocket17 = doc.addObject("PartDesign::Pocket", "Pocket016")
body.addObject(pocket17)
pocket17.Profile = sketch20
pocket17.Type = "UpToFirst"

# Sketch on XZ plane
sketch21 = doc.addObject("Sketcher::SketchObject", "Sketch020")
body.addObject(sketch21)
sketch21.AttachmentSupport = (doc.XZ_Plane, [""])
sketch21.MapMode = "FlatFace"
sketch21.AttachmentOffset = App.Placement(App.Vector(0, 0, 140), App.Rotation())
sketch21.addGeometry(Part.Circle(App.Vector(-24, 5, 0), App.Vector(0, 0, 1), 2.1), False)
sketch21.addConstraint(Sketcher.Constraint("Diameter", 0, Q("4.2 mm")))
sketch21.addConstraint(Sketcher.Constraint("DistanceX", 0, 3, -1, 1, Q("24 mm")))
sketch21.addConstraint(Sketcher.Constraint("DistanceY", -1, 1, 0, 3, Q("5 mm")))
pocket18 = doc.addObject("PartDesign::Pocket", "Pocket017")
body.addObject(pocket18)
pocket18.Profile = sketch21
pocket18.Type = "UpToFirst"

# Sketch on XZ plane
sketch22 = doc.addObject("Sketcher::SketchObject", "Sketch021")
body.addObject(sketch22)
sketch22.AttachmentSupport = (doc.XZ_Plane, [""])
sketch22.MapMode = "FlatFace"
sketch22.AttachmentOffset = App.Placement(App.Vector(0, 0, 140), App.Rotation())
sketch22.addGeometry(Part.Circle(App.Vector(-24, -5, 0), App.Vector(0, 0, 1), 2.1), False)
sketch22.addConstraint(Sketcher.Constraint("Diameter", 0, Q("4.2 mm")))
sketch22.addConstraint(Sketcher.Constraint("DistanceX", 0, 3, -1, 1, Q("24 mm")))
sketch22.addConstraint(Sketcher.Constraint("DistanceY", 0, 3, -1, 1, Q("5 mm")))
pocket19 = doc.addObject("PartDesign::Pocket", "Pocket018")
body.addObject(pocket19)
pocket19.Profile = sketch22
pocket19.Type = "UpToFirst"

# Sketch on XZ plane
sketch23 = doc.addObject("Sketcher::SketchObject", "Sketch022")
body.addObject(sketch23)
sketch23.AttachmentSupport = (doc.XZ_Plane, [""])
sketch23.MapMode = "FlatFace"
sketch23.AttachmentOffset = App.Placement(App.Vector(0, 0, 140), App.Rotation())
sketch23.addGeometry(Part.Circle(App.Vector(24, 5, 0), App.Vector(0, 0, 1), 2.1), False)
sketch23.addConstraint(Sketcher.Constraint("Diameter", 0, Q("4.2 mm")))
sketch23.addConstraint(Sketcher.Constraint("DistanceX", -1, 1, 0, 3, Q("24 mm")))
sketch23.addConstraint(Sketcher.Constraint("DistanceY", -1, 1, 0, 3, Q("5 mm")))
pocket20 = doc.addObject("PartDesign::Pocket", "Pocket019")
body.addObject(pocket20)
pocket20.Profile = sketch23
pocket20.Type = "UpToFirst"

# Sketch on XZ plane
sketch24 = doc.addObject("Sketcher::SketchObject", "Sketch023")
body.addObject(sketch24)
sketch24.AttachmentSupport = (doc.XZ_Plane, [""])
sketch24.MapMode = "FlatFace"
sketch24.AttachmentOffset = App.Placement(App.Vector(0, 0, 140), App.Rotation())
sketch24.addGeometry(Part.Circle(App.Vector(24, -5, 0), App.Vector(0, 0, 1), 2.1), False)
sketch24.addConstraint(Sketcher.Constraint("Diameter", 0, Q("4.2 mm")))
sketch24.addConstraint(Sketcher.Constraint("DistanceX", -1, 1, 0, 3, Q("24 mm")))
sketch24.addConstraint(Sketcher.Constraint("DistanceY", 0, 3, -1, 1, Q("5 mm")))
pocket21 = doc.addObject("PartDesign::Pocket", "Pocket020")
body.addObject(pocket21)
pocket21.Profile = sketch24
pocket21.Type = "UpToFirst"
doc.recompute()

chamfer = doc.addObject("PartDesign::Chamfer", "Chamfer")
body.addObject(chamfer)
chamfer.Base = (pocket21, edges_at(pocket21, [
    (21, -50, 7),
    (0, 21, 7),
    (21, -50, -7),
    (-21, -50, -7),
    (0, 21, -7),
    (-21, -50, 7),
]))
chamfer.Size = 5

doc.recompute()
